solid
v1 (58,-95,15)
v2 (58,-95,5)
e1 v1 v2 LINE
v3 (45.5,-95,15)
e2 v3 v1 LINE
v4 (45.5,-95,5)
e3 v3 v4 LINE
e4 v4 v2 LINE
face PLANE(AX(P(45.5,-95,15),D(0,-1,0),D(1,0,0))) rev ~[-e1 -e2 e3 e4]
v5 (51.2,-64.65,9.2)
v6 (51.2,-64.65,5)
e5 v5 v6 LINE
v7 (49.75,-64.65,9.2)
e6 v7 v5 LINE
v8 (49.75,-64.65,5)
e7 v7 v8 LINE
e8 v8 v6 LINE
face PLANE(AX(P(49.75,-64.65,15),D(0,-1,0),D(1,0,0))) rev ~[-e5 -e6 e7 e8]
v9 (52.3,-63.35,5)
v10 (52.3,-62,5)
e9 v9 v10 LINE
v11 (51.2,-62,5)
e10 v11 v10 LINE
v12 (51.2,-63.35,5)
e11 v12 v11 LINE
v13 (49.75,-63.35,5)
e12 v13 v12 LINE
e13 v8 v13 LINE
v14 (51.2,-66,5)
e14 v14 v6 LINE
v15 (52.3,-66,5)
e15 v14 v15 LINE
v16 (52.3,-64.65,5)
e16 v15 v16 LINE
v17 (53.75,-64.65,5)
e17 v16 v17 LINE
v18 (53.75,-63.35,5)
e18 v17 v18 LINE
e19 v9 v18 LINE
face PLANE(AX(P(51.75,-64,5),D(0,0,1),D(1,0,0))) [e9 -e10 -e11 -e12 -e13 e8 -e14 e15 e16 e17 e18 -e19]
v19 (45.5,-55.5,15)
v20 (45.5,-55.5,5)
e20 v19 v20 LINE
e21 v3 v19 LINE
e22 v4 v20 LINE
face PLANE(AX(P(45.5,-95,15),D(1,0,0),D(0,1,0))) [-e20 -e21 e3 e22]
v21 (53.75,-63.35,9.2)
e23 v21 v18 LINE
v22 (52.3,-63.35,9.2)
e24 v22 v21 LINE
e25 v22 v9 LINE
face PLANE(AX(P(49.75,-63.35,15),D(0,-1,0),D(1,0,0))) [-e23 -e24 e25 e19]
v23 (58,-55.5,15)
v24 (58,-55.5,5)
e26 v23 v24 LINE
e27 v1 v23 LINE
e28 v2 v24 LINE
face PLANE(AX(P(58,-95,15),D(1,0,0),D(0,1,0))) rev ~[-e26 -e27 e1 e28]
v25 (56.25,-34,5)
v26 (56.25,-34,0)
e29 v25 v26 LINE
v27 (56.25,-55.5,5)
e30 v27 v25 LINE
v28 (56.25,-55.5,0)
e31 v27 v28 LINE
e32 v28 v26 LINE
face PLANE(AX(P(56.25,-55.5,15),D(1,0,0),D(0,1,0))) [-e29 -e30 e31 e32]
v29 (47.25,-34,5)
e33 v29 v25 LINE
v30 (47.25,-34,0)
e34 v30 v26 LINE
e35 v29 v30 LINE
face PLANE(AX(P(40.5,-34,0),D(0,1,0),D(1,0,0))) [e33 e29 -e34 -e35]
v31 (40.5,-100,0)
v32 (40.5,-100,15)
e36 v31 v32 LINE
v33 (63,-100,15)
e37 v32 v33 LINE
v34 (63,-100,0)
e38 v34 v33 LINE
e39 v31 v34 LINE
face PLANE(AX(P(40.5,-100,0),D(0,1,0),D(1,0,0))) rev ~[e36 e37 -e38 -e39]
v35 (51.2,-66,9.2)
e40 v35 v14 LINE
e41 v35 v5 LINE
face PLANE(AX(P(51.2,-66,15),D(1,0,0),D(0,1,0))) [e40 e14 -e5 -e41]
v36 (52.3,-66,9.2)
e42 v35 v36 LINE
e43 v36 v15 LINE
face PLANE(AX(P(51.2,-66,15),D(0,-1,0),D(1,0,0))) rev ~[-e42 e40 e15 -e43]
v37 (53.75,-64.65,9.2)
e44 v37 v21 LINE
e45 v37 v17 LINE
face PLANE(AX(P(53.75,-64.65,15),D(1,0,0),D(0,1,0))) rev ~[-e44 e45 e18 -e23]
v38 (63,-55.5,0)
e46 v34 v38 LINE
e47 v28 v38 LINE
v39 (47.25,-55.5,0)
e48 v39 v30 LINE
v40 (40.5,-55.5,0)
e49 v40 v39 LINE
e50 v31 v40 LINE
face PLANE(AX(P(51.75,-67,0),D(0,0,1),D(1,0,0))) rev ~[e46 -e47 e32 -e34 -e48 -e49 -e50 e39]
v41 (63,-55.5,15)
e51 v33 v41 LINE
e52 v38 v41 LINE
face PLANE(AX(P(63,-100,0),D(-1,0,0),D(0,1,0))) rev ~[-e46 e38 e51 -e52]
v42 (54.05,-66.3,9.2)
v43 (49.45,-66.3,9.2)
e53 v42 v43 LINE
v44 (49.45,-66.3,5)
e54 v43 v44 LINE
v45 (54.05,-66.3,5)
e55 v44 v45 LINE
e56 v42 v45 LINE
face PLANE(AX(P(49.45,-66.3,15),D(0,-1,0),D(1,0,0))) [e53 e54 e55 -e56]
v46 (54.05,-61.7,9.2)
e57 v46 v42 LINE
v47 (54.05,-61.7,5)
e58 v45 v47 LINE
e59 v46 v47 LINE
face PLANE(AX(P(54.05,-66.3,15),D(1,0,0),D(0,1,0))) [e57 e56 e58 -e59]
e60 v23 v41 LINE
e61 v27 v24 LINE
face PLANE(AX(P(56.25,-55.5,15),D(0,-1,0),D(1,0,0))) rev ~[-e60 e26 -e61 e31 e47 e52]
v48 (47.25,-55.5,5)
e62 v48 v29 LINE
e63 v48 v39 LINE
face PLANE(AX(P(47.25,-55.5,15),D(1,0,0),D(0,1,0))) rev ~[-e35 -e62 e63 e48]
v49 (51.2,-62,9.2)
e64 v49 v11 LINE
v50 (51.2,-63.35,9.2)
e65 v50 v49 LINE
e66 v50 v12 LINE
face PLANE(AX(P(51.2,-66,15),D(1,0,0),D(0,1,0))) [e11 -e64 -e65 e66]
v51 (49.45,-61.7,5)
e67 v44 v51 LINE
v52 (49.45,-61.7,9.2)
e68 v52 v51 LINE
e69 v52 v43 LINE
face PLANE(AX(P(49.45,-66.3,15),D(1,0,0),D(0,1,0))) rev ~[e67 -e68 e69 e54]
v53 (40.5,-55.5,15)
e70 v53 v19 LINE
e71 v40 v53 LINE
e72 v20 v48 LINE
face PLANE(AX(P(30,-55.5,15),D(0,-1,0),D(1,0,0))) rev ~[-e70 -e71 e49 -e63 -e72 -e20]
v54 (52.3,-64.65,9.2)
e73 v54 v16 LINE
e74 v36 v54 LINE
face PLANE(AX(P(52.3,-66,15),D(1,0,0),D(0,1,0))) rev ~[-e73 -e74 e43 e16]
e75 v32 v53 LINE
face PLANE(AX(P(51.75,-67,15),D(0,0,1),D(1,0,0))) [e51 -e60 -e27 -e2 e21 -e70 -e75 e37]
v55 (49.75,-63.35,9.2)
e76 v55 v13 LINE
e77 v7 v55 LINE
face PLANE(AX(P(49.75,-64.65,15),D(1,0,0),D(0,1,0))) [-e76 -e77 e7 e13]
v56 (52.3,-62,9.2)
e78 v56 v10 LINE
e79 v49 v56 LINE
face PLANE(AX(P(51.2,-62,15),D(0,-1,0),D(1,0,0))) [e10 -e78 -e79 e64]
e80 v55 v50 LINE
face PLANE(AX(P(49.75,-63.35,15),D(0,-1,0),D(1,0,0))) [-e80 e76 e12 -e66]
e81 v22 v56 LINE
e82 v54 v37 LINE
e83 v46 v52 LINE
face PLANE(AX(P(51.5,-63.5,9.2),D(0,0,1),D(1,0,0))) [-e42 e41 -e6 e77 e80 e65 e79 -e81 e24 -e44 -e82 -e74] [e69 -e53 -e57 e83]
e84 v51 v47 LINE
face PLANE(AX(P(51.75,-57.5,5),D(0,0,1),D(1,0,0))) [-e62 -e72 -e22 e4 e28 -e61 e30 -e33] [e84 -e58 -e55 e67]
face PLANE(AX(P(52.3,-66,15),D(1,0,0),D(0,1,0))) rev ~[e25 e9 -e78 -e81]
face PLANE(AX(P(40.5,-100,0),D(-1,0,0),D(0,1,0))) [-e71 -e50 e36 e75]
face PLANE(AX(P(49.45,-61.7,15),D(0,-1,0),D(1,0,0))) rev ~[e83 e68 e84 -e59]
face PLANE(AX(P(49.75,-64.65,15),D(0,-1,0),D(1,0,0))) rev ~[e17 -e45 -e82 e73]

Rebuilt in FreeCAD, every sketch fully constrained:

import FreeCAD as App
import Part
import Sketcher

V = App.Vector

doc = App.newDocument("Part")
body = doc.addObject("PartDesign::Body", "Body")

sketch1 = doc.addObject("Sketcher::SketchObject", "Sketch")
body.addObject(sketch1)
sketch1.AttachmentSupport = (doc.XY_Plane, [""])
sketch1.MapMode = "FlatFace"
sketch1.addGeometry(Part.LineSegment(V(40, -34, 0), V(40, -100, 0)), False)
sketch1.addGeometry(Part.LineSegment(V(40, -100, 0), V(63, -100, 0)), False)
sketch1.addGeometry(Part.LineSegment(V(63, -100, 0), V(63, -34, 0)), False)
sketch1.addGeometry(Part.LineSegment(V(63, -34, 0), V(40, -34, 0)), False)
sketch1.addConstraint(Sketcher.Constraint("Coincident", 0, 2, 1, 1))
sketch1.addConstraint(Sketcher.Constraint("Coincident", 1, 2, 2, 1))
sketch1.addConstraint(Sketcher.Constraint("Coincident", 2, 2, 3, 1))
sketch1.addConstraint(Sketcher.Constraint("Coincident", 3, 2, 0, 1))
sketch1.addConstraint(Sketcher.Constraint("Vertical", 0))
sketch1.addConstraint(Sketcher.Constraint("Horizontal", 1))
sketch1.addConstraint(Sketcher.Constraint("Vertical", 2))
sketch1.addConstraint(Sketcher.Constraint("Horizontal", 3))
sketch1.addConstraint(Sketcher.Constraint("DistanceY", 0, 2, 0, 1, 66.0))
sketch1.addConstraint(Sketcher.Constraint("DistanceX", 1, 1, 1, 2, 22.5))
sketch1.addConstraint(Sketcher.Constraint("DistanceY", 0, 2, -1, 1, 100.0))
sketch1.addConstraint(Sketcher.Constraint("DistanceX", -1, 1, 1, 2, 63.0))
pad1 = doc.addObject("PartDesign::Pad", "Pad")
body.addObject(pad1)
pad1.Profile = sketch1
pad1.Length = 15

sketch2 = doc.addObject("Sketcher::SketchObject", "Sketch001")
body.addObject(sketch2)
sketch2.AttachmentSupport = (doc.XY_Plane, [""])
sketch2.MapMode = "FlatFace"
sketch2.AttachmentOffset = App.Placement(V(0, 0, 15), App.Rotation())
sketch2.addGeometry(Part.LineSegment(V(45.5, -20, 0), V(45.5, -95, 0)), False)
sketch2.addGeometry(Part.LineSegment(V(45.5, -95, 0), V(58, -95, 0)), False)
sketch2.addGeometry(Part.LineSegment(V(58, -95, 0), V(58, -20, 0)), False)
sketch2.addGeometry(Part.LineSegment(V(58, -20, 0), V(45.5, -20, 0)), False)
sketch2.addGeometry(Part.LineSegment(V(54, -66.3, 0), V(49.5, -66.3, 0)), False)
sketch2.addGeometry(Part.LineSegment(V(49.5, -66.3, 0), V(49.5, -61.7, 0)), False)
sketch2.addGeometry(Part.LineSegment(V(49.5, -61.7, 0), V(54, -61.7, 0)), False)
sketch2.addGeometry(Part.LineSegment(V(54, -61.7, 0), V(54, -66.3, 0)), False)
sketch2.addConstraint(Sketcher.Constraint("Coincident", 0, 2, 1, 1))
sketch2.addConstraint(Sketcher.Constraint("Coincident", 1, 2, 2, 1))
sketch2.addConstraint(Sketcher.Constraint("Coincident", 2, 2, 3, 1))
sketch2.addConstraint(Sketcher.Constraint("Coincident", 3, 2, 0, 1))
sketch2.addConstraint(Sketcher.Constraint("Coincident", 4, 2, 5, 1))
sketch2.addConstraint(Sketcher.Constraint("Coincident", 5, 2, 6, 1))
sketch2.addConstraint(Sketcher.Constraint("Coincident", 6, 2, 7, 1))
sketch2.addConstraint(Sketcher.Constraint("Coincident", 7, 2, 4, 1))
sketch2.addConstraint(Sketcher.Constraint("Vertical", 0))
sketch2.addConstraint(Sketcher.Constraint("Horizontal", 1))
sketch2.addConstraint(Sketcher.Constraint("Vertical", 2))
sketch2.addConstraint(Sketcher.Constraint("Horizontal", 3))
sketch2.addConstraint(Sketcher.Constraint("Horizontal", 4))
sketch2.addConstraint(Sketcher.Constraint("Vertical", 5))
sketch2.addConstraint(Sketcher.Constraint("Horizontal", 6))
sketch2.addConstraint(Sketcher.Constraint("Vertical", 7))
sketch2.addConstraint(Sketcher.Constraint("Equal", 6, 5))
sketch2.addConstraint(Sketcher.Constraint("DistanceY", 0, 2, 0, 1, 75.0))
sketch2.addConstraint(Sketcher.Constraint("DistanceX", 1, 1, 1, 2, 12.5))
sketch2.addConstraint(Sketcher.Constraint("DistanceX", 4, 2, 4, 1, 4.6))
sketch2.addConstraint(Sketcher.Constraint("DistanceY", 0, 2, -1, 1, 95.0))
sketch2.addConstraint(Sketcher.Constraint("DistanceX", -1, 1, 1, 2, 58.0))
sketch2.addConstraint(Sketcher.Constraint("DistanceY", 4, 2, -1, 1, 66.3))
sketch2.addConstraint(Sketcher.Constraint("DistanceX", -1, 1, 4, 2, 49.45))
pocket1 = doc.addObject("PartDesign::Pocket", "Pocket")
body.addObject(pocket1)
pocket1.Profile = sketch2
pocket1.Length = 10

sketch3 = doc.addObject("Sketcher::SketchObject", "Sketch002")
body.addObject(sketch3)
sketch3.AttachmentSupport = (doc.XY_Plane, [""])
sketch3.MapMode = "FlatFace"
sketch3.AttachmentOffset = App.Placement(V(0, 0, 15), App.Rotation())
sketch3.addGeometry(Part.LineSegment(V(48, -60, 0), V(48, -67, 0)), False)
sketch3.addGeometry(Part.LineSegment(V(48, -67, 0), V(55, -67, 0)), False)
sketch3.addGeometry(Part.LineSegment(V(55, -67, 0), V(55, -60, 0)), False)
sketch3.addGeometry(Part.LineSegment(V(55, -60, 0), V(48, -60, 0)), False)
sketch3.addConstraint(Sketcher.Constraint("Coincident", 0, 2, 1, 1))
sketch3.addConstraint(Sketcher.Constraint("Coincident", 1, 2, 2, 1))
sketch3.addConstraint(Sketcher.Constraint("Coincident", 2, 2, 3, 1))
sketch3.addConstraint(Sketcher.Constraint("Coincident", 3, 2, 0, 1))
sketch3.addConstraint(Sketcher.Constraint("Vertical", 0))
sketch3.addConstraint(Sketcher.Constraint("Horizontal", 1))
sketch3.addConstraint(Sketcher.Constraint("Vertical", 2))
sketch3.addConstraint(Sketcher.Constraint("Horizontal", 3))
sketch3.addConstraint(Sketcher.Constraint("Equal", 3, 0))
sketch3.addConstraint(Sketcher.Constraint("DistanceX", 1, 1, 1, 2, 7.0))
sketch3.addConstraint(Sketcher.Constraint("DistanceX", -1, 1, 0, 2, 48.0))
sketch3.addConstraint(Sketcher.Constraint("DistanceY", 0, 2, -1, 1, 67.0))
pocket2 = doc.addObject("PartDesign::Pocket", "Pocket001")
body.addObject(pocket2)
pocket2.Profile = sketch3
pocket2.Length = 5.8

sketch4 = doc.addObject("Sketcher::SketchObject", "Sketch003")
body.addObject(sketch4)
sketch4.AttachmentSupport = (doc.XY_Plane, [""])
sketch4.MapMode = "FlatFace"
sketch4.AttachmentOffset = App.Placement(V(0, 0, 15), App.Rotation())
sketch4.addGeometry(Part.LineSegment(V(51.2, -62, 0), V(51.2, -66, 0)), False)
sketch4.addGeometry(Part.LineSegment(V(51.2, -66, 0), V(52.3, -66, 0)), False)
sketch4.addGeometry(Part.LineSegment(V(52.3, -66, 0), V(52.3, -62, 0)), False)
sketch4.addGeometry(Part.LineSegment(V(52.3, -62, 0), V(51.2, -62, 0)), False)
sketch4.addConstraint(Sketcher.Constraint("Coincident", 0, 2, 1, 1))
sketch4.addConstraint(Sketcher.Constraint("Coincident", 1, 2, 2, 1))
sketch4.addConstraint(Sketcher.Constraint("Coincident", 2, 2, 3, 1))
sketch4.addConstraint(Sketcher.Constraint("Coincident", 3, 2, 0, 1))
sketch4.addConstraint(Sketcher.Constraint("Vertical", 0))
sketch4.addConstraint(Sketcher.Constraint("Horizontal", 1))
sketch4.addConstraint(Sketcher.Constraint("Vertical", 2))
sketch4.addConstraint(Sketcher.Constraint("Horizontal", 3))
sketch4.addConstraint(Sketcher.Constraint("DistanceY", 0, 2, 0, 1, 4.0))
sketch4.addConstraint(Sketcher.Constraint("DistanceX", 1, 1, 1, 2, 1.1))
sketch4.addConstraint(Sketcher.Constraint("DistanceY", 0, 2, -1, 1, 66.0))
sketch4.addConstraint(Sketcher.Constraint("DistanceX", -1, 1, 0, 2, 51.2))
pocket3 = doc.addObject("PartDesign::Pocket", "Pocket002")
body.addObject(pocket3)
pocket3.Profile = sketch4
pocket3.Length = 10

sketch5 = doc.addObject("Sketcher::SketchObject", "Sketch004")
body.addObject(sketch5)
sketch5.AttachmentSupport = (doc.XY_Plane, [""])
sketch5.MapMode = "FlatFace"
sketch5.AttachmentOffset = App.Placement(V(0, 0, 15), App.Rotation())
sketch5.addGeometry(Part.LineSegment(V(49.8, -63.4, 0), V(49.8, -64.7, 0)), False)
sketch5.addGeometry(Part.LineSegment(V(49.8, -64.7, 0), V(53.8, -64.7, 0)), False)
sketch5.addGeometry(Part.LineSegment(V(53.8, -64.7, 0), V(53.8, -63.4, 0)), False)
sketch5.addGeometry(Part.LineSegment(V(53.8, -63.4, 0), V(49.8, -63.4, 0)), False)
sketch5.addConstraint(Sketcher.Constraint("Coincident", 0, 2, 1, 1))
sketch5.addConstraint(Sketcher.Constraint("Coincident", 1, 2, 2, 1))
sketch5.addConstraint(Sketcher.Constraint("Coincident", 2, 2, 3, 1))
sketch5.addConstraint(Sketcher.Constraint("Coincident", 3, 2, 0, 1))
sketch5.addConstraint(Sketcher.Constraint("Vertical", 0))
sketch5.addConstraint(Sketcher.Constraint("Horizontal", 1))
sketch5.addConstraint(Sketcher.Constraint("Vertical", 2))
sketch5.addConstraint(Sketcher.Constraint("Horizontal", 3))
sketch5.addConstraint(Sketcher.Constraint("DistanceX", 1, 1, 1, 2, 4.0))
sketch5.addConstraint(Sketcher.Constraint("DistanceY", 0, 2, 0, 1, 1.3))
sketch5.addConstraint(Sketcher.Constraint("DistanceX", -1, 1, 0, 2, 49.75))
sketch5.addConstraint(Sketcher.Constraint("DistanceY", 0, 2, -1, 1, 64.65))
pocket4 = doc.addObject("PartDesign::Pocket", "Pocket003")
body.addObject(pocket4)
pocket4.Profile = sketch5
pocket4.Length = 10

sketch6 = doc.addObject("Sketcher::SketchObject", "Sketch005")
body.addObject(sketch6)
sketch6.AttachmentSupport = (doc.XY_Plane, [""])
sketch6.MapMode = "FlatFace"
sketch6.AttachmentOffset = App.Placement(V(0, 0, 15), App.Rotation())
sketch6.addGeometry(Part.LineSegment(V(56, -29, 0), V(56, -56, 0)), False)
sketch6.addGeometry(Part.LineSegment(V(56, -56, 0), V(76, -56, 0)), False)
sketch6.addGeometry(Part.LineSegment(V(76, -56, 0), V(76, -29, 0)), False)
sketch6.addGeometry(Part.LineSegment(V(76, -29, 0), V(56, -29, 0)), False)
sketch6.addGeometry(Part.LineSegment(V(30, -29, 0), V(30, -56, 0)), False)
sketch6.addGeometry(Part.LineSegment(V(30, -56, 0), V(47, -56, 0)), False)
sketch6.addGeometry(Part.LineSegment(V(47, -56, 0), V(47, -29, 0)), False)
sketch6.addGeometry(Part.LineSegment(V(47, -29, 0), V(30, -29, 0)), False)
sketch6.addConstraint(Sketcher.Constraint("Coincident", 0, 2, 1, 1))
sketch6.addConstraint(Sketcher.Constraint("Coincident", 1, 2, 2, 1))
sketch6.addConstraint(Sketcher.Constraint("Coincident", 2, 2, 3, 1))
sketch6.addConstraint(Sketcher.Constraint("Coincident", 3, 2, 0, 1))
sketch6.addConstraint(Sketcher.Constraint("Coincident", 4, 2, 5, 1))
sketch6.addConstraint(Sketcher.Constraint("Coincident", 5, 2, 6, 1))
sketch6.addConstraint(Sketcher.Constraint("Coincident", 6, 2, 7, 1))
sketch6.addConstraint(Sketcher.Constraint("Coincident", 7, 2, 4, 1))
sketch6.addConstraint(Sketcher.Constraint("Vertical", 0))
sketch6.addConstraint(Sketcher.Constraint("Horizontal", 1))
sketch6.addConstraint(Sketcher.Constraint("Vertical", 2))
sketch6.addConstraint(Sketcher.Constraint("Horizontal", 3))
sketch6.addConstraint(Sketcher.Constraint("Vertical", 4))
sketch6.addConstraint(Sketcher.Constraint("Horizontal", 5))
sketch6.addConstraint(Sketcher.Constraint("Vertical", 6))
sketch6.addConstraint(Sketcher.Constraint("Horizontal", 7))
sketch6.addConstraint(Sketcher.Constraint("Horizontal", 1, 2, 4, 2))
sketch6.addConstraint(Sketcher.Constraint("Horizontal", 3, 2, 6, 2))
sketch6.addConstraint(Sketcher.Constraint("DistanceY", 0, 2, 0, 1, 26.5))
sketch6.addConstraint(Sketcher.Constraint("DistanceX", -1, 1, 1, 2, 76.0))
sketch6.addConstraint(Sketcher.Constraint("DistanceY", 2, 2, -1, 1, 29.0))
sketch6.addConstraint(Sketcher.Constraint("DistanceX", -1, 1, 4, 2, 30.0))
sketch6.addConstraint(Sketcher.Constraint("DistanceX", 5, 2, 0, 2, 9.0))
sketch6.addConstraint(Sketcher.Constraint("DistanceX", 1, 1, 1, 2, 19.75))
pocket5 = doc.addObject("PartDesign::Pocket", "Pocket004")
body.addObject(pocket5)
pocket5.Profile = sketch6
pocket5.Length = 20

doc.recompute()
